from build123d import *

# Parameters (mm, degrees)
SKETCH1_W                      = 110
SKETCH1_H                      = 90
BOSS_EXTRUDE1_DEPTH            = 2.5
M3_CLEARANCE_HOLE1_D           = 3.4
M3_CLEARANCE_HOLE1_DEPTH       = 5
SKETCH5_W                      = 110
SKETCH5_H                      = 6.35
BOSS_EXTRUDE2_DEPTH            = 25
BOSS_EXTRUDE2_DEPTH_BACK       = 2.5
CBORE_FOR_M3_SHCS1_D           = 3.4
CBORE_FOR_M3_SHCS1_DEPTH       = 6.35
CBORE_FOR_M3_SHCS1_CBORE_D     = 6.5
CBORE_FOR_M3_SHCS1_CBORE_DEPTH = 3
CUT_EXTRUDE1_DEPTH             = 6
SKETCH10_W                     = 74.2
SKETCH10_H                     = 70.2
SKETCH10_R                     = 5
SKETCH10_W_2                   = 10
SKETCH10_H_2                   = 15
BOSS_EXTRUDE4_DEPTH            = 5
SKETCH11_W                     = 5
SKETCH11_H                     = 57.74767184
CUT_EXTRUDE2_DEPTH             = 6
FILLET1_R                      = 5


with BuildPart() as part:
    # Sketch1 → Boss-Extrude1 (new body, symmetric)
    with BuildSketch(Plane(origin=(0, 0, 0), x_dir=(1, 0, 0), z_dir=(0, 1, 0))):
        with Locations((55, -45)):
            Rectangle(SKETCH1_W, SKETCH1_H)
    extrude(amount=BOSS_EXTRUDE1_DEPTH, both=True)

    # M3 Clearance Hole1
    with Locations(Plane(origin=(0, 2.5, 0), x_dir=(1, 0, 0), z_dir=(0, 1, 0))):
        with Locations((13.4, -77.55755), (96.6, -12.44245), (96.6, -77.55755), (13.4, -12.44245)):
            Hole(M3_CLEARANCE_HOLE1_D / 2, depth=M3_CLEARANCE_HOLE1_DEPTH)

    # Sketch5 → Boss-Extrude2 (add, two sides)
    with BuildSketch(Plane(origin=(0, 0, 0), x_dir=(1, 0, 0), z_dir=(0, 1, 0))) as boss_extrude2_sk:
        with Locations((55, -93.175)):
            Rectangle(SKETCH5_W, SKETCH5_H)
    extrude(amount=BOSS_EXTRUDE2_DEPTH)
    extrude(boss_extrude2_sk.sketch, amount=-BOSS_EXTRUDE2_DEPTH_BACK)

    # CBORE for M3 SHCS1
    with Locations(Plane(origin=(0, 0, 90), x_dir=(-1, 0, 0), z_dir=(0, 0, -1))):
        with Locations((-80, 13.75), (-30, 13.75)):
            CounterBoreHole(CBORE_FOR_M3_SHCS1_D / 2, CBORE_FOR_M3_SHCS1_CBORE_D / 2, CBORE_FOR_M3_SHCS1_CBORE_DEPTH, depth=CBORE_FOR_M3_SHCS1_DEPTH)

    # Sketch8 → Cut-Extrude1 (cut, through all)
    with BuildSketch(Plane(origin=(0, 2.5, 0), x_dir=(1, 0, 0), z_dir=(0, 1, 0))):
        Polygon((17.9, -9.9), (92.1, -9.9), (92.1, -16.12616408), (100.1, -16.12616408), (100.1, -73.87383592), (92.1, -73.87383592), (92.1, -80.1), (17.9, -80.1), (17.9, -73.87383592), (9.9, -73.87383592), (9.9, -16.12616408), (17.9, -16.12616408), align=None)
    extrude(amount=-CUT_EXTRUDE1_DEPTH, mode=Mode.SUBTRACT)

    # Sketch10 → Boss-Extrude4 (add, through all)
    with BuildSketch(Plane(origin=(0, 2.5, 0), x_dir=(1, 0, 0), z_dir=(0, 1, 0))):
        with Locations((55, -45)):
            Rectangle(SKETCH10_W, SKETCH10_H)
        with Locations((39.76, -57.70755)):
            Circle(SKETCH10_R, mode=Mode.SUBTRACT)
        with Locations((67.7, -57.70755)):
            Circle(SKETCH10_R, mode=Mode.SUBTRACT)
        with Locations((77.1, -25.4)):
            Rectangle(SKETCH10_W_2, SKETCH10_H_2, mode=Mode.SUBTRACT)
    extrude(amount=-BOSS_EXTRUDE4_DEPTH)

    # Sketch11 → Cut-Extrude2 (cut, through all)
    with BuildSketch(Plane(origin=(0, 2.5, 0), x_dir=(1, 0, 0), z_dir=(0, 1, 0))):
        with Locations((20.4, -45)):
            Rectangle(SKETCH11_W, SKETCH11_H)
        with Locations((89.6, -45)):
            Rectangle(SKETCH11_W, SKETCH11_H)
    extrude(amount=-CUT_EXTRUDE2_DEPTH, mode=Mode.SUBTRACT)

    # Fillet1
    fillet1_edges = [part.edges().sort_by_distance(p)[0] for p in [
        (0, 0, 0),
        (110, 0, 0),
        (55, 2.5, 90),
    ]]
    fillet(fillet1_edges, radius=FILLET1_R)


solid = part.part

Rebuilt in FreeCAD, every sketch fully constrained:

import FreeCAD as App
import Part
import Sketcher


def edges_at(feature, points):
    """Names of the edges that pass closest to the given points."""
    edges = feature.Shape.Edges
    near = lambda p: min(range(len(edges)), key=lambda i: edges[i].distToShape(Part.Vertex(*p))[0])
    return sorted({f"Edge{near(p) + 1}" for p in points})

doc = App.newDocument("Part")
body = doc.addObject("PartDesign::Body", "Body")

# Sketch on XZ plane
sketch1 = body.newObject("Sketcher::SketchObject", "Sketch")
sketch1.AttachmentSupport = (doc.getObject("XZ_Plane"), [""])
sketch1.MapMode = "FlatFace"
sketch1.addGeometry(Part.LineSegment(App.Vector(0, 0, 0), App.Vector(0, 90, 0)), False)
sketch1.addGeometry(Part.LineSegment(App.Vector(0, 90, 0), App.Vector(110, 90, 0)), False)
sketch1.addGeometry(Part.LineSegment(App.Vector(110, 90, 0), App.Vector(110, 0, 0)), False)
sketch1.addGeometry(Part.LineSegment(App.Vector(110, 0, 0), App.Vector(0, 0, 0)), False)
sketch1.addConstraint(Sketcher.Constraint("Coincident", 0, 2, 1, 1))
sketch1.addConstraint(Sketcher.Constraint("Coincident", 1, 2, 2, 1))
sketch1.addConstraint(Sketcher.Constraint("Coincident", 2, 2, 3, 1))
sketch1.addConstraint(Sketcher.Constraint("Coincident", 3, 2, 0, 1))
sketch1.addConstraint(Sketcher.Constraint("Vertical", 0))
sketch1.addConstraint(Sketcher.Constraint("Horizontal", 1))
sketch1.addConstraint(Sketcher.Constraint("Vertical", 2))
sketch1.addConstraint(Sketcher.Constraint("Horizontal", 3))
sketch1.addConstraint(Sketcher.Constraint("Coincident", 3, 2, -1, 1))
sketch1.addConstraint(Sketcher.Constraint("DistanceX", 1, 1, 1, 2, 110.0))
sketch1.addConstraint(Sketcher.Constraint("DistanceY", 0, 1, 0, 2, 90.0))
pad1 = body.newObject("PartDesign::Pad", "Pad")
pad1.Profile = sketch1
pad1.Length = 5
pad1.Midplane = True

# Sketch on XZ plane
sketch2 = body.newObject("Sketcher::SketchObject", "Sketch001")
sketch2.AttachmentSupport = (doc.getObject("XZ_Plane"), [""])
sketch2.MapMode = "FlatFace"
sketch2.AttachmentOffset = App.Placement(App.Vector(0, 0, -2.5), App.Rotation())
sketch2.addGeometry(Part.Circle(App.Vector(13.4, 77.55755, 0), App.Vector(0, 0, 1), 1.7), False)
sketch2.addGeometry(Part.Circle(App.Vector(96.6, 12.44245, 0), App.Vector(0, 0, 1), 1.7), False)
sketch2.addGeometry(Part.Circle(App.Vector(96.6, 77.55755, 0), App.Vector(0, 0, 1), 1.7), False)
sketch2.addGeometry(Part.Circle(App.Vector(13.4, 12.44245, 0), App.Vector(0, 0, 1), 1.7), False)
sketch2.addConstraint(Sketcher.Constraint("Equal", 0, 1))
sketch2.addConstraint(Sketcher.Constraint("Equal", 1, 2))
sketch2.addConstraint(Sketcher.Constraint("Equal", 2, 3))
sketch2.addConstraint(Sketcher.Constraint("Horizontal", 0, 3, 2, 3))
sketch2.addConstraint(Sketcher.Constraint("Horizontal", 1, 3, 3, 3))
sketch2.addConstraint(Sketcher.Constraint("Vertical", 1, 3, 2, 3))
sketch2.addConstraint(Sketcher.Constraint("Vertical", 0, 3, 3, 3))
sketch2.addConstraint(Sketcher.Constraint("Diameter", 0, 3.4))
sketch2.addConstraint(Sketcher.Constraint("DistanceX", -1, 1, 0, 3, 13.4))
sketch2.addConstraint(Sketcher.Constraint("DistanceX", -1, 1, 1, 3, 96.6))
sketch2.addConstraint(Sketcher.Constraint("DistanceY", 1, 3, 0, 3, 65.1151))
sketch2.addConstraint(Sketcher.Constraint("DistanceY", -1, 1, 0, 3, 77.55755))
doc.recompute()
hole = body.newObject("PartDesign::Hole", "Hole")
hole.Profile = sketch2
hole.ThreadType = "None"
hole.Diameter = 3.4
hole.DepthType = "Dimension"
hole.Depth = 5
hole.DrillPoint = "Flat"
hole.Reversed = True

# Sketch on XZ plane
sketch3 = body.newObject("Sketcher::SketchObject", "Sketch002")
sketch3.AttachmentSupport = (doc.getObject("XZ_Plane"), [""])
sketch3.MapMode = "FlatFace"
sketch3.addGeometry(Part.LineSegment(App.Vector(0, 90, 0), App.Vector(0, 96.35, 0)), False)
sketch3.addGeometry(Part.LineSegment(App.Vector(0, 96.35, 0), App.Vector(110, 96.35, 0)), False)
sketch3.addGeometry(Part.LineSegment(App.Vector(110, 96.35, 0), App.Vector(110, 90, 0)), False)
sketch3.addGeometry(Part.LineSegment(App.Vector(110, 90, 0), App.Vector(0, 90, 0)), False)
sketch3.addConstraint(Sketcher.Constraint("Coincident", 0, 2, 1, 1))
sketch3.addConstraint(Sketcher.Constraint("Coincident", 1, 2, 2, 1))
sketch3.addConstraint(Sketcher.Constraint("Coincident", 2, 2, 3, 1))
sketch3.addConstraint(Sketcher.Constraint("Coincident", 3, 2, 0, 1))
sketch3.addConstraint(Sketcher.Constraint("Vertical", 0))
sketch3.addConstraint(Sketcher.Constraint("Horizontal", 1))
sketch3.addConstraint(Sketcher.Constraint("Vertical", 2))
sketch3.addConstraint(Sketcher.Constraint("Horizontal", 3))
sketch3.addConstraint(Sketcher.Constraint("PointOnObject", 0, 2, -2))
sketch3.addConstraint(Sketcher.Constraint("DistanceX", 1, 1, 1, 2, 110.0))
sketch3.addConstraint(Sketcher.Constraint("DistanceY", -1, 1, 2, 2, 90.0))
sketch3.addConstraint(Sketcher.Constraint("DistanceY", 0, 1, 0, 2, 6.35))
pad2 = body.newObject("PartDesign::Pad", "Pad001")
pad2.Profile = sketch3
pad2.Type = "TwoLengths"
pad2.Length = 25
pad2.Length2 = 2.5
pad2.Reversed = True

# Sketch on XY plane
sketch4 = body.newObject("Sketcher::SketchObject", "Sketch003")
sketch4.AttachmentSupport = (doc.getObject("XY_Plane"), [""])
sketch4.MapMode = "FlatFace"
sketch4.AttachmentOffset = App.Placement(App.Vector(0, 0, 90), App.Rotation())
sketch4.addGeometry(Part.Circle(App.Vector(80, 13.75, 0), App.Vector(0, 0, 1), 1.7), False)
sketch4.addGeometry(Part.Circle(App.Vector(30, 13.75, 0), App.Vector(0, 0, 1), 1.7), False)
sketch4.addConstraint(Sketcher.Constraint("Equal", 0, 1))
sketch4.addConstraint(Sketcher.Constraint("Horizontal", 0, 3, 1, 3))
sketch4.addConstraint(Sketcher.Constraint("Diameter", 0, 3.4))
sketch4.addConstraint(Sketcher.Constraint("DistanceX", -1, 1, 0, 3, 80.0))
sketch4.addConstraint(Sketcher.Constraint("DistanceX", -1, 1, 1, 3, 30.0))
sketch4.addConstraint(Sketcher.Constraint("DistanceY", -1, 1, 0, 3, 13.75))
doc.recompute()
hole2 = body.newObject("PartDesign::Hole", "Hole001")
hole2.Profile = sketch4
hole2.ThreadType = "None"
hole2.Diameter = 3.4
hole2.DepthType = "Dimension"
hole2.Depth = 6.35
hole2.DrillPoint = "Flat"
hole2.HoleCutType = "Counterbore"
hole2.HoleCutDiameter = 6.5
hole2.HoleCutDepth = 3
hole2.Reversed = True

# Sketch on XZ plane
sketch5 = body.newObject("Sketcher::SketchObject", "Sketch004")
sketch5.AttachmentSupport = (doc.getObject("XZ_Plane"), [""])
sketch5.MapMode = "FlatFace"
sketch5.AttachmentOffset = App.Placement(App.Vector(0, 0, -2.5), App.Rotation())
sketch5.addGeometry(Part.LineSegment(App.Vector(92.1, 9.9, 0), App.Vector(17.9, 9.9, 0)), False)
sketch5.addGeometry(Part.LineSegment(App.Vector(17.9, 9.9, 0), App.Vector(17.9, 16.126164, 0)), False)
sketch5.addGeometry(Part.LineSegment(App.Vector(17.9, 16.126164, 0), App.Vector(9.9, 16.126164, 0)), False)
sketch5.addGeometry(Part.LineSegment(App.Vector(9.9, 16.126164, 0), App.Vector(9.9, 73.873836, 0)), False)
sketch5.addGeometry(Part.LineSegment(App.Vector(9.9, 73.873836, 0), App.Vector(17.9, 73.873836, 0)), False)
sketch5.addGeometry(Part.LineSegment(App.Vector(17.9, 73.873836, 0), App.Vector(17.9, 80.1, 0)), False)
sketch5.addGeometry(Part.LineSegment(App.Vector(17.9, 80.1, 0), App.Vector(92.1, 80.1, 0)), False)
sketch5.addGeometry(Part.LineSegment(App.Vector(92.1, 80.1, 0), App.Vector(92.1, 73.873836, 0)), False)
sketch5.addGeometry(Part.LineSegment(App.Vector(92.1, 73.873836, 0), App.Vector(100.1, 73.873836, 0)), False)
sketch5.addGeometry(Part.LineSegment(App.Vector(100.1, 73.873836, 0), App.Vector(100.1, 16.126164, 0)), False)
sketch5.addGeometry(Part.LineSegment(App.Vector(100.1, 16.126164, 0), App.Vector(92.1, 16.126164, 0)), False)
sketch5.addGeometry(Part.LineSegment(App.Vector(92.1, 16.126164, 0), App.Vector(92.1, 9.9, 0)), False)
sketch5.addConstraint(Sketcher.Constraint("Coincident", 0, 2, 1, 1))
sketch5.addConstraint(Sketcher.Constraint("Coincident", 1, 2, 2, 1))
sketch5.addConstraint(Sketcher.Constraint("Coincident", 2, 2, 3, 1))
sketch5.addConstraint(Sketcher.Constraint("Coincident", 3, 2, 4, 1))
sketch5.addConstraint(Sketcher.Constraint("Coincident", 4, 2, 5, 1))
sketch5.addConstraint(Sketcher.Constraint("Coincident", 5, 2, 6, 1))
sketch5.addConstraint(Sketcher.Constraint("Coincident", 6, 2, 7, 1))
sketch5.addConstraint(Sketcher.Constraint("Coincident", 7, 2, 8, 1))
sketch5.addConstraint(Sketcher.Constraint("Coincident", 8, 2, 9, 1))
sketch5.addConstraint(Sketcher.Constraint("Coincident", 9, 2, 10, 1))
sketch5.addConstraint(Sketcher.Constraint("Coincident", 10, 2, 11, 1))
sketch5.addConstraint(Sketcher.Constraint("Coincident", 11, 2, 0, 1))
sketch5.addConstraint(Sketcher.Constraint("Horizontal", 0))
sketch5.addConstraint(Sketcher.Constraint("Vertical", 1))
sketch5.addConstraint(Sketcher.Constraint("Horizontal", 2))
sketch5.addConstraint(Sketcher.Constraint("Vertical", 3))
sketch5.addConstraint(Sketcher.Constraint("Horizontal", 4))
sketch5.addConstraint(Sketcher.Constraint("Vertical", 5))
sketch5.addConstraint(Sketcher.Constraint("Horizontal", 6))
sketch5.addConstraint(Sketcher.Constraint("Vertical", 7))
sketch5.addConstraint(Sketcher.Constraint("Horizontal", 8))
sketch5.addConstraint(Sketcher.Constraint("Vertical", 9))
sketch5.addConstraint(Sketcher.Constraint("Horizontal", 10))
sketch5.addConstraint(Sketcher.Constraint("Vertical", 11))
sketch5.addConstraint(Sketcher.Constraint("Horizontal", 4, 2, 7, 2))
sketch5.addConstraint(Sketcher.Constraint("Horizontal", 2, 2, 9, 2))
sketch5.addConstraint(Sketcher.Constraint("Vertical", 1, 2, 4, 2))
sketch5.addConstraint(Sketcher.Constraint("Vertical", 7, 2, 10, 2))
sketch5.addConstraint(Sketcher.Constraint("Equal", 4, 8))
sketch5.addConstraint(Sketcher.Constraint("Equal", 1, 5))
sketch5.addConstraint(Sketcher.Constraint("DistanceX", 2, 2, 2, 1, 8.0))
sketch5.addConstraint(Sketcher.Constraint("DistanceX", 0, 2, 0, 1, 74.2))
sketch5.addConstraint(Sketcher.Constraint("DistanceX", -1, 1, 0, 2, 17.9))
sketch5.addConstraint(Sketcher.Constraint("DistanceY", -1, 1, 0, 2, 9.9))
sketch5.addConstraint(Sketcher.Constraint("DistanceY", -1, 1, 5, 2, 80.1))
sketch5.addConstraint(Sketcher.Constraint("DistanceY", 3, 1, 3, 2, 57.747672))
pocket1 = body.newObject("PartDesign::Pocket", "Pocket")
pocket1.Profile = sketch5
pocket1.Type = "ThroughAll"
pocket1.Reversed = True

# Sketch on XZ plane
sketch6 = body.newObject("Sketcher::SketchObject", "Sketch005")
sketch6.AttachmentSupport = (doc.getObject("XZ_Plane"), [""])
sketch6.MapMode = "FlatFace"
sketch6.AttachmentOffset = App.Placement(App.Vector(0, 0, -2.5), App.Rotation())
sketch6.addGeometry(Part.LineSegment(App.Vector(17.9, 9.9, 0), App.Vector(17.9, 80.1, 0)), False)
sketch6.addGeometry(Part.LineSegment(App.Vector(17.9, 80.1, 0), App.Vector(92.1, 80.1, 0)), False)
sketch6.addGeometry(Part.LineSegment(App.Vector(92.1, 80.1, 0), App.Vector(92.1, 9.9, 0)), False)
sketch6.addGeometry(Part.LineSegment(App.Vector(92.1, 9.9, 0), App.Vector(17.9, 9.9, 0)), False)
sketch6.addGeometry(Part.Circle(App.Vector(39.76, 57.70755, 0), App.Vector(0, 0, 1), 5), False)
sketch6.addGeometry(Part.Circle(App.Vector(67.7, 57.70755, 0), App.Vector(0, 0, 1), 5), False)
sketch6.addGeometry(Part.LineSegment(App.Vector(82.1, 32.9, 0), App.Vector(72.1, 32.9, 0)), False)
sketch6.addGeometry(Part.LineSegment(App.Vector(72.1, 32.9, 0), App.Vector(72.1, 17.9, 0)), False)
sketch6.addGeometry(Part.LineSegment(App.Vector(72.1, 17.9, 0), App.Vector(82.1, 17.9, 0)), False)
sketch6.addGeometry(Part.LineSegment(App.Vector(82.1, 17.9, 0), App.Vector(82.1, 32.9, 0)), False)
sketch6.addConstraint(Sketcher.Constraint("Coincident", 0, 2, 1, 1))
sketch6.addConstraint(Sketcher.Constraint("Coincident", 1, 2, 2, 1))
sketch6.addConstraint(Sketcher.Constraint("Coincident", 2, 2, 3, 1))
sketch6.addConstraint(Sketcher.Constraint("Coincident", 3, 2, 0, 1))
sketch6.addConstraint(Sketcher.Constraint("Coincident", 6, 2, 7, 1))
sketch6.addConstraint(Sketcher.Constraint("Coincident", 7, 2, 8, 1))
sketch6.addConstraint(Sketcher.Constraint("Coincident", 8, 2, 9, 1))
sketch6.addConstraint(Sketcher.Constraint("Coincident", 9, 2, 6, 1))
sketch6.addConstraint(Sketcher.Constraint("Vertical", 0))
sketch6.addConstraint(Sketcher.Constraint("Horizontal", 1))
sketch6.addConstraint(Sketcher.Constraint("Vertical", 2))
sketch6.addConstraint(Sketcher.Constraint("Horizontal", 3))
sketch6.addConstraint(Sketcher.Constraint("Horizontal", 6))
sketch6.addConstraint(Sketcher.Constraint("Vertical", 7))
sketch6.addConstraint(Sketcher.Constraint("Horizontal", 8))
sketch6.addConstraint(Sketcher.Constraint("Vertical", 9))
sketch6.addConstraint(Sketcher.Constraint("Equal", 4, 5))
sketch6.addConstraint(Sketcher.Constraint("Horizontal", 4, 3, 5, 3))
sketch6.addConstraint(Sketcher.Constraint("Diameter", 4, 10.0))
sketch6.addConstraint(Sketcher.Constraint("DistanceX", 6, 2, 6, 1, 10.0))
sketch6.addConstraint(Sketcher.Constraint("DistanceY", 7, 2, 7, 1, 15.0))
sketch6.addConstraint(Sketcher.Constraint("DistanceX", 1, 1, 1, 2, 74.2))
sketch6.addConstraint(Sketcher.Constraint("DistanceY", 0, 1, 0, 2, 70.2))
sketch6.addConstraint(Sketcher.Constraint("DistanceX", 6, 2, 2, 2, 20.0))
sketch6.addConstraint(Sketcher.Constraint("DistanceY", 2, 2, 6, 2, 23.0))
sketch6.addConstraint(Sketcher.Constraint("DistanceX", -1, 1, 5, 3, 67.7))
sketch6.addConstraint(Sketcher.Constraint("DistanceX", -1, 1, 0, 2, 17.9))
sketch6.addConstraint(Sketcher.Constraint("DistanceY", -1, 1, 0, 2, 80.1))
sketch6.addConstraint(Sketcher.Constraint("DistanceX", -1, 1, 4, 3, 39.76))
sketch6.addConstraint(Sketcher.Constraint("DistanceY", -1, 1, 4, 3, 57.70755))
pad3 = body.newObject("PartDesign::Pad", "Pad002")
pad3.Profile = sketch6
pad3.Length = 5

# Sketch on XZ plane
sketch7 = body.newObject("Sketcher::SketchObject", "Sketch006")
sketch7.AttachmentSupport = (doc.getObject("XZ_Plane"), [""])
sketch7.MapMode = "FlatFace"
sketch7.AttachmentOffset = App.Placement(App.Vector(0, 0, -2.5), App.Rotation())
sketch7.addGeometry(Part.LineSegment(App.Vector(17.9, 16.126164, 0), App.Vector(17.9, 73.873836, 0)), False)
sketch7.addGeometry(Part.LineSegment(App.Vector(17.9, 73.873836, 0), App.Vector(22.9, 73.873836, 0)), False)
sketch7.addGeometry(Part.LineSegment(App.Vector(22.9, 73.873836, 0), App.Vector(22.9, 16.126164, 0)), False)
sketch7.addGeometry(Part.LineSegment(App.Vector(22.9, 16.126164, 0), App.Vector(17.9, 16.126164, 0)), False)
sketch7.addGeometry(Part.LineSegment(App.Vector(87.1, 16.126164, 0), App.Vector(87.1, 73.873836, 0)), False)
sketch7.addGeometry(Part.LineSegment(App.Vector(87.1, 73.873836, 0), App.Vector(92.1, 73.873836, 0)), False)
sketch7.addGeometry(Part.LineSegment(App.Vector(92.1, 73.873836, 0), App.Vector(92.1, 16.126164, 0)), False)
sketch7.addGeometry(Part.LineSegment(App.Vector(92.1, 16.126164, 0), App.Vector(87.1, 16.126164, 0)), False)
sketch7.addConstraint(Sketcher.Constraint("Coincident", 0, 2, 1, 1))
sketch7.addConstraint(Sketcher.Constraint("Coincident", 1, 2, 2, 1))
sketch7.addConstraint(Sketcher.Constraint("Coincident", 2, 2, 3, 1))
sketch7.addConstraint(Sketcher.Constraint("Coincident", 3, 2, 0, 1))
sketch7.addConstraint(Sketcher.Constraint("Coincident", 4, 2, 5, 1))
sketch7.addConstraint(Sketcher.Constraint("Coincident", 5, 2, 6, 1))
sketch7.addConstraint(Sketcher.Constraint("Coincident", 6, 2, 7, 1))
sketch7.addConstraint(Sketcher.Constraint("Coincident", 7, 2, 4, 1))
sketch7.addConstraint(Sketcher.Constraint("Vertical", 0))
sketch7.addConstraint(Sketcher.Constraint("Horizontal", 1))
sketch7.addConstraint(Sketcher.Constraint("Vertical", 2))
sketch7.addConstraint(Sketcher.Constraint("Horizontal", 3))
sketch7.addConstraint(Sketcher.Constraint("Vertical", 4))
sketch7.addConstraint(Sketcher.Constraint("Horizontal", 5))
sketch7.addConstraint(Sketcher.Constraint("Vertical", 6))
sketch7.addConstraint(Sketcher.Constraint("Horizontal", 7))
sketch7.addConstraint(Sketcher.Constraint("Horizontal", 1, 2, 4, 2))
sketch7.addConstraint(Sketcher.Constraint("Horizontal", 3, 2, 6, 2))
sketch7.addConstraint(Sketcher.Constraint("Equal", 3, 5))
sketch7.addConstraint(Sketcher.Constraint("DistanceX", 1, 1, 1, 2, 5.0))
sketch7.addConstraint(Sketcher.Constraint("DistanceX", -1, 1, 0, 2, 17.9))
sketch7.addConstraint(Sketcher.Constraint("DistanceX", -1, 1, 4, 2, 87.1))
sketch7.addConstraint(Sketcher.Constraint("DistanceY", 0, 1, 0, 2, 57.747672))
sketch7.addConstraint(Sketcher.Constraint("DistanceY", -1, 1, 0, 2, 73.873836))
pocket2 = body.newObject("PartDesign::Pocket", "Pocket001")
pocket2.Profile = sketch7
pocket2.Type = "ThroughAll"
pocket2.Reversed = True
doc.recompute()

fillet = body.newObject("PartDesign::Fillet", "Fillet")
fillet.Base = (pocket2, edges_at(pocket2, [(0, 0, 0), (110, 0, 0), (55, 2.5, 90)]))
fillet.Radius = 5

doc.recompute()
